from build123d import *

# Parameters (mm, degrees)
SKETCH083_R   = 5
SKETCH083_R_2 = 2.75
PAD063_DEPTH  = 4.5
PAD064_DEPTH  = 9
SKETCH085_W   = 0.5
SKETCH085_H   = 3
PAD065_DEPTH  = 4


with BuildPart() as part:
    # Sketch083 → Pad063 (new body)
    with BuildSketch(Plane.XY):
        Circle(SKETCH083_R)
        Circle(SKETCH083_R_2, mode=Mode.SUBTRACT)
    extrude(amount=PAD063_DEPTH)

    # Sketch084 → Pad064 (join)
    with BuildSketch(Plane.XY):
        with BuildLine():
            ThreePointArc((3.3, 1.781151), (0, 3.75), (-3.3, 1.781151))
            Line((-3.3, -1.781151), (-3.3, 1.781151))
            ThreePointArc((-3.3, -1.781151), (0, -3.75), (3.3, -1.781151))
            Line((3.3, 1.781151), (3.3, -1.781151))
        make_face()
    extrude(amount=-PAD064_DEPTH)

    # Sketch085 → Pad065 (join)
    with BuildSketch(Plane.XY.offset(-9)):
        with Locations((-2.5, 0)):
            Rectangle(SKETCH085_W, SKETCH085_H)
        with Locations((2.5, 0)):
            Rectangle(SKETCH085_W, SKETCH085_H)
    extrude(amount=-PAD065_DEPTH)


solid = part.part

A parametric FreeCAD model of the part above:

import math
import FreeCAD as App
import Part
import Sketcher
from FreeCAD import Vector

doc = App.newDocument("Part")
body = doc.addObject("PartDesign::Body", "Body")

sketch1 = doc.addObject("Sketcher::SketchObject", "Sketch")
body.addObject(sketch1)
sketch1.AttachmentSupport = (doc.XY_Plane, [""])
sketch1.MapMode = "FlatFace"
sketch1.addGeometry([
    Part.Circle(Vector(0, 0, 0), Vector(0, 0, 1), 5),
    Part.Circle(Vector(0, 0, 0), Vector(0, 0, 1), 2.8),
], False)
sketch1.addConstraint([
    Sketcher.Constraint("Coincident", 0, 3, -1, 1),
    Sketcher.Constraint("Coincident", 1, 3, -1, 1),
    Sketcher.Constraint("Diameter", 0, 10.0),
    Sketcher.Constraint("Diameter", 1, 5.5),
])
pad1 = doc.addObject("PartDesign::Pad", "Pad")
body.addObject(pad1)
pad1.Profile = sketch1
pad1.Length = 4.5

sketch2 = doc.addObject("Sketcher::SketchObject", "Sketch001")
body.addObject(sketch2)
sketch2.AttachmentSupport = (doc.XY_Plane, [""])
sketch2.MapMode = "FlatFace"
sketch2.addGeometry([
    Part.ArcOfCircle(Part.Circle(Vector(0, 0, 0), Vector(0, 0, 1), 3.7), math.radians(28), math.radians(152)),
    Part.LineSegment(Vector(-3.3, 1.8, 0), Vector(-3.3, -1.8, 0)),
    Part.ArcOfCircle(Part.Circle(Vector(0, 0, 0), Vector(0, 0, 1), 3.7), math.radians(-152), math.radians(-28)),
    Part.LineSegment(Vector(3.3, -1.8, 0), Vector(3.3, 1.8, 0)),
], False)
sketch2.addConstraint([
    Sketcher.Constraint("Coincident", 0, 2, 1, 1),
    Sketcher.Constraint("Coincident", 1, 2, 2, 1),
    Sketcher.Constraint("Coincident", 2, 2, 3, 1),
    Sketcher.Constraint("Coincident", 3, 2, 0, 1),
    Sketcher.Constraint("Vertical", 1),
    Sketcher.Constraint("Vertical", 3),
    Sketcher.Constraint("Coincident", 0, 3, -1, 1),
    Sketcher.Constraint("Coincident", 2, 3, -1, 1),
    Sketcher.Constraint("Equal", 0, 2),
    Sketcher.Constraint("Horizontal", 1, 2, 2, 2),
    Sketcher.Constraint("Radius", 0, 3.75),
    Sketcher.Constraint("DistanceX", 0, 2, -1, 1, 3.3),
])
pad2 = doc.addObject("PartDesign::Pad", "Pad001")
body.addObject(pad2)
pad2.Profile = sketch2
pad2.Length = 9
pad2.Reversed = True

sketch3 = doc.addObject("Sketcher::SketchObject", "Sketch002")
body.addObject(sketch3)
sketch3.AttachmentSupport = (doc.XY_Plane, [""])
sketch3.MapMode = "FlatFace"
sketch3.AttachmentOffset = App.Placement(Vector(0, 0, -9), App.Rotation())
sketch3.addGeometry([
    Part.LineSegment(Vector(-2.8, 1.5, 0), Vector(-2.8, -1.5, 0)),
    Part.LineSegment(Vector(-2.8, -1.5, 0), Vector(-2.2, -1.5, 0)),
    Part.LineSegment(Vector(-2.2, -1.5, 0), Vector(-2.2, 1.5, 0)),
    Part.LineSegment(Vector(-2.2, 1.5, 0), Vector(-2.8, 1.5, 0)),
    Part.LineSegment(Vector(2.2, 1.5, 0), Vector(2.2, -1.5, 0)),
    Part.LineSegment(Vector(2.2, -1.5, 0), Vector(2.8, -1.5, 0)),
    Part.LineSegment(Vector(2.8, -1.5, 0), Vector(2.8, 1.5, 0)),
    Part.LineSegment(Vector(2.8, 1.5, 0), Vector(2.2, 1.5, 0)),
], False)
sketch3.addConstraint([
    Sketcher.Constraint("Coincident", 0, 2, 1, 1),
    Sketcher.Constraint("Coincident", 1, 2, 2, 1),
    Sketcher.Constraint("Coincident", 2, 2, 3, 1),
    Sketcher.Constraint("Coincident", 3, 2, 0, 1),
    Sketcher.Constraint("Coincident", 4, 2, 5, 1),
    Sketcher.Constraint("Coincident", 5, 2, 6, 1),
    Sketcher.Constraint("Coincident", 6, 2, 7, 1),
    Sketcher.Constraint("Coincident", 7, 2, 4, 1),
    Sketcher.Constraint("Vertical", 0),
    Sketcher.Constraint("Horizontal", 1),
    Sketcher.Constraint("Vertical", 2),
    Sketcher.Constraint("Horizontal", 3),
    Sketcher.Constraint("Vertical", 4),
    Sketcher.Constraint("Horizontal", 5),
    Sketcher.Constraint("Vertical", 6),
    Sketcher.Constraint("Horizontal", 7),
    Sketcher.Constraint("Symmetric", 2, 2, 4, 2, -1, 1),
    Sketcher.Constraint("Symmetric", 0, 2, 6, 2, -1, 1),
    Sketcher.Constraint("Horizontal", 1, 2, 4, 2),
    Sketcher.Constraint("DistanceY", 0, 2, 0, 1, 3.0),
    Sketcher.Constraint("DistanceX", 1, 1, 1, 2, 0.5),
    Sketcher.Constraint("DistanceX", 0, 2, 4, 2, 5.0),
])
pad3 = doc.addObject("PartDesign::Pad", "Pad002")
body.addObject(pad3)
pad3.Profile = sketch3
pad3.Length = 4
pad3.Reversed = True

doc.recompute()
